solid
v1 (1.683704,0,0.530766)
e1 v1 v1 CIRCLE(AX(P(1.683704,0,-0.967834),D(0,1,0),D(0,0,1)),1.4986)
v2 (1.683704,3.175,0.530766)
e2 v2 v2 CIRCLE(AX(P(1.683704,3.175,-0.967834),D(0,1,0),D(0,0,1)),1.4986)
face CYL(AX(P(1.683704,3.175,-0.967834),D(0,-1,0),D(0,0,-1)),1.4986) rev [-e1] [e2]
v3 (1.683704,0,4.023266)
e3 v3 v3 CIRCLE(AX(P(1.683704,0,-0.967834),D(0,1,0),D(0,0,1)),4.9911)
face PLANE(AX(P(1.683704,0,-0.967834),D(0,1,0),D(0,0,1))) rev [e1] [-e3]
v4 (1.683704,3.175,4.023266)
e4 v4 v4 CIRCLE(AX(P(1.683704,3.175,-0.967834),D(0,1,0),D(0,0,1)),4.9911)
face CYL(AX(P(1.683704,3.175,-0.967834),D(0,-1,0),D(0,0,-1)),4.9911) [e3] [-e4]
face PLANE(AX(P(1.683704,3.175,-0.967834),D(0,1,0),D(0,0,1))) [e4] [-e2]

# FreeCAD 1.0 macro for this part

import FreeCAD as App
import Part
import Sketcher
Q = App.Units.Quantity

doc = App.newDocument("Part")
body = doc.addObject("PartDesign::Body", "Body")

# Sketch on XZ plane
sketch1 = doc.addObject("Sketcher::SketchObject", "Sketch")
body.addObject(sketch1)
sketch1.AttachmentSupport = (doc.XZ_Plane, [""])
sketch1.MapMode = "FlatFace"
sketch1.addGeometry(Part.Circle(App.Vector(1.7, -1, 0), App.Vector(0, 0, 1), 5), False)
sketch1.addGeometry(Part.Circle(App.Vector(1.7, -1, 0), App.Vector(0, 0, 1), 1.5), False)
sketch1.addConstraint(Sketcher.Constraint("Coincident", 1, 3, 0, 3))
sketch1.addConstraint(Sketcher.Constraint("Diameter", 0, Q("0.393 in")))
sketch1.addConstraint(Sketcher.Constraint("Diameter", 1, Q("0.118 in")))
sketch1.addConstraint(Sketcher.Constraint("DistanceX", -1, 1, 0, 3, 1.683704))
sketch1.addConstraint(Sketcher.Constraint("DistanceY", 0, 3, -1, 1, 0.967834))
pad1 = doc.addObject("PartDesign::Pad", "Pad")
body.addObject(pad1)
pad1.Profile = sketch1
pad1.Length = Q("0.125 in")
pad1.Reversed = True

doc.recompute()
